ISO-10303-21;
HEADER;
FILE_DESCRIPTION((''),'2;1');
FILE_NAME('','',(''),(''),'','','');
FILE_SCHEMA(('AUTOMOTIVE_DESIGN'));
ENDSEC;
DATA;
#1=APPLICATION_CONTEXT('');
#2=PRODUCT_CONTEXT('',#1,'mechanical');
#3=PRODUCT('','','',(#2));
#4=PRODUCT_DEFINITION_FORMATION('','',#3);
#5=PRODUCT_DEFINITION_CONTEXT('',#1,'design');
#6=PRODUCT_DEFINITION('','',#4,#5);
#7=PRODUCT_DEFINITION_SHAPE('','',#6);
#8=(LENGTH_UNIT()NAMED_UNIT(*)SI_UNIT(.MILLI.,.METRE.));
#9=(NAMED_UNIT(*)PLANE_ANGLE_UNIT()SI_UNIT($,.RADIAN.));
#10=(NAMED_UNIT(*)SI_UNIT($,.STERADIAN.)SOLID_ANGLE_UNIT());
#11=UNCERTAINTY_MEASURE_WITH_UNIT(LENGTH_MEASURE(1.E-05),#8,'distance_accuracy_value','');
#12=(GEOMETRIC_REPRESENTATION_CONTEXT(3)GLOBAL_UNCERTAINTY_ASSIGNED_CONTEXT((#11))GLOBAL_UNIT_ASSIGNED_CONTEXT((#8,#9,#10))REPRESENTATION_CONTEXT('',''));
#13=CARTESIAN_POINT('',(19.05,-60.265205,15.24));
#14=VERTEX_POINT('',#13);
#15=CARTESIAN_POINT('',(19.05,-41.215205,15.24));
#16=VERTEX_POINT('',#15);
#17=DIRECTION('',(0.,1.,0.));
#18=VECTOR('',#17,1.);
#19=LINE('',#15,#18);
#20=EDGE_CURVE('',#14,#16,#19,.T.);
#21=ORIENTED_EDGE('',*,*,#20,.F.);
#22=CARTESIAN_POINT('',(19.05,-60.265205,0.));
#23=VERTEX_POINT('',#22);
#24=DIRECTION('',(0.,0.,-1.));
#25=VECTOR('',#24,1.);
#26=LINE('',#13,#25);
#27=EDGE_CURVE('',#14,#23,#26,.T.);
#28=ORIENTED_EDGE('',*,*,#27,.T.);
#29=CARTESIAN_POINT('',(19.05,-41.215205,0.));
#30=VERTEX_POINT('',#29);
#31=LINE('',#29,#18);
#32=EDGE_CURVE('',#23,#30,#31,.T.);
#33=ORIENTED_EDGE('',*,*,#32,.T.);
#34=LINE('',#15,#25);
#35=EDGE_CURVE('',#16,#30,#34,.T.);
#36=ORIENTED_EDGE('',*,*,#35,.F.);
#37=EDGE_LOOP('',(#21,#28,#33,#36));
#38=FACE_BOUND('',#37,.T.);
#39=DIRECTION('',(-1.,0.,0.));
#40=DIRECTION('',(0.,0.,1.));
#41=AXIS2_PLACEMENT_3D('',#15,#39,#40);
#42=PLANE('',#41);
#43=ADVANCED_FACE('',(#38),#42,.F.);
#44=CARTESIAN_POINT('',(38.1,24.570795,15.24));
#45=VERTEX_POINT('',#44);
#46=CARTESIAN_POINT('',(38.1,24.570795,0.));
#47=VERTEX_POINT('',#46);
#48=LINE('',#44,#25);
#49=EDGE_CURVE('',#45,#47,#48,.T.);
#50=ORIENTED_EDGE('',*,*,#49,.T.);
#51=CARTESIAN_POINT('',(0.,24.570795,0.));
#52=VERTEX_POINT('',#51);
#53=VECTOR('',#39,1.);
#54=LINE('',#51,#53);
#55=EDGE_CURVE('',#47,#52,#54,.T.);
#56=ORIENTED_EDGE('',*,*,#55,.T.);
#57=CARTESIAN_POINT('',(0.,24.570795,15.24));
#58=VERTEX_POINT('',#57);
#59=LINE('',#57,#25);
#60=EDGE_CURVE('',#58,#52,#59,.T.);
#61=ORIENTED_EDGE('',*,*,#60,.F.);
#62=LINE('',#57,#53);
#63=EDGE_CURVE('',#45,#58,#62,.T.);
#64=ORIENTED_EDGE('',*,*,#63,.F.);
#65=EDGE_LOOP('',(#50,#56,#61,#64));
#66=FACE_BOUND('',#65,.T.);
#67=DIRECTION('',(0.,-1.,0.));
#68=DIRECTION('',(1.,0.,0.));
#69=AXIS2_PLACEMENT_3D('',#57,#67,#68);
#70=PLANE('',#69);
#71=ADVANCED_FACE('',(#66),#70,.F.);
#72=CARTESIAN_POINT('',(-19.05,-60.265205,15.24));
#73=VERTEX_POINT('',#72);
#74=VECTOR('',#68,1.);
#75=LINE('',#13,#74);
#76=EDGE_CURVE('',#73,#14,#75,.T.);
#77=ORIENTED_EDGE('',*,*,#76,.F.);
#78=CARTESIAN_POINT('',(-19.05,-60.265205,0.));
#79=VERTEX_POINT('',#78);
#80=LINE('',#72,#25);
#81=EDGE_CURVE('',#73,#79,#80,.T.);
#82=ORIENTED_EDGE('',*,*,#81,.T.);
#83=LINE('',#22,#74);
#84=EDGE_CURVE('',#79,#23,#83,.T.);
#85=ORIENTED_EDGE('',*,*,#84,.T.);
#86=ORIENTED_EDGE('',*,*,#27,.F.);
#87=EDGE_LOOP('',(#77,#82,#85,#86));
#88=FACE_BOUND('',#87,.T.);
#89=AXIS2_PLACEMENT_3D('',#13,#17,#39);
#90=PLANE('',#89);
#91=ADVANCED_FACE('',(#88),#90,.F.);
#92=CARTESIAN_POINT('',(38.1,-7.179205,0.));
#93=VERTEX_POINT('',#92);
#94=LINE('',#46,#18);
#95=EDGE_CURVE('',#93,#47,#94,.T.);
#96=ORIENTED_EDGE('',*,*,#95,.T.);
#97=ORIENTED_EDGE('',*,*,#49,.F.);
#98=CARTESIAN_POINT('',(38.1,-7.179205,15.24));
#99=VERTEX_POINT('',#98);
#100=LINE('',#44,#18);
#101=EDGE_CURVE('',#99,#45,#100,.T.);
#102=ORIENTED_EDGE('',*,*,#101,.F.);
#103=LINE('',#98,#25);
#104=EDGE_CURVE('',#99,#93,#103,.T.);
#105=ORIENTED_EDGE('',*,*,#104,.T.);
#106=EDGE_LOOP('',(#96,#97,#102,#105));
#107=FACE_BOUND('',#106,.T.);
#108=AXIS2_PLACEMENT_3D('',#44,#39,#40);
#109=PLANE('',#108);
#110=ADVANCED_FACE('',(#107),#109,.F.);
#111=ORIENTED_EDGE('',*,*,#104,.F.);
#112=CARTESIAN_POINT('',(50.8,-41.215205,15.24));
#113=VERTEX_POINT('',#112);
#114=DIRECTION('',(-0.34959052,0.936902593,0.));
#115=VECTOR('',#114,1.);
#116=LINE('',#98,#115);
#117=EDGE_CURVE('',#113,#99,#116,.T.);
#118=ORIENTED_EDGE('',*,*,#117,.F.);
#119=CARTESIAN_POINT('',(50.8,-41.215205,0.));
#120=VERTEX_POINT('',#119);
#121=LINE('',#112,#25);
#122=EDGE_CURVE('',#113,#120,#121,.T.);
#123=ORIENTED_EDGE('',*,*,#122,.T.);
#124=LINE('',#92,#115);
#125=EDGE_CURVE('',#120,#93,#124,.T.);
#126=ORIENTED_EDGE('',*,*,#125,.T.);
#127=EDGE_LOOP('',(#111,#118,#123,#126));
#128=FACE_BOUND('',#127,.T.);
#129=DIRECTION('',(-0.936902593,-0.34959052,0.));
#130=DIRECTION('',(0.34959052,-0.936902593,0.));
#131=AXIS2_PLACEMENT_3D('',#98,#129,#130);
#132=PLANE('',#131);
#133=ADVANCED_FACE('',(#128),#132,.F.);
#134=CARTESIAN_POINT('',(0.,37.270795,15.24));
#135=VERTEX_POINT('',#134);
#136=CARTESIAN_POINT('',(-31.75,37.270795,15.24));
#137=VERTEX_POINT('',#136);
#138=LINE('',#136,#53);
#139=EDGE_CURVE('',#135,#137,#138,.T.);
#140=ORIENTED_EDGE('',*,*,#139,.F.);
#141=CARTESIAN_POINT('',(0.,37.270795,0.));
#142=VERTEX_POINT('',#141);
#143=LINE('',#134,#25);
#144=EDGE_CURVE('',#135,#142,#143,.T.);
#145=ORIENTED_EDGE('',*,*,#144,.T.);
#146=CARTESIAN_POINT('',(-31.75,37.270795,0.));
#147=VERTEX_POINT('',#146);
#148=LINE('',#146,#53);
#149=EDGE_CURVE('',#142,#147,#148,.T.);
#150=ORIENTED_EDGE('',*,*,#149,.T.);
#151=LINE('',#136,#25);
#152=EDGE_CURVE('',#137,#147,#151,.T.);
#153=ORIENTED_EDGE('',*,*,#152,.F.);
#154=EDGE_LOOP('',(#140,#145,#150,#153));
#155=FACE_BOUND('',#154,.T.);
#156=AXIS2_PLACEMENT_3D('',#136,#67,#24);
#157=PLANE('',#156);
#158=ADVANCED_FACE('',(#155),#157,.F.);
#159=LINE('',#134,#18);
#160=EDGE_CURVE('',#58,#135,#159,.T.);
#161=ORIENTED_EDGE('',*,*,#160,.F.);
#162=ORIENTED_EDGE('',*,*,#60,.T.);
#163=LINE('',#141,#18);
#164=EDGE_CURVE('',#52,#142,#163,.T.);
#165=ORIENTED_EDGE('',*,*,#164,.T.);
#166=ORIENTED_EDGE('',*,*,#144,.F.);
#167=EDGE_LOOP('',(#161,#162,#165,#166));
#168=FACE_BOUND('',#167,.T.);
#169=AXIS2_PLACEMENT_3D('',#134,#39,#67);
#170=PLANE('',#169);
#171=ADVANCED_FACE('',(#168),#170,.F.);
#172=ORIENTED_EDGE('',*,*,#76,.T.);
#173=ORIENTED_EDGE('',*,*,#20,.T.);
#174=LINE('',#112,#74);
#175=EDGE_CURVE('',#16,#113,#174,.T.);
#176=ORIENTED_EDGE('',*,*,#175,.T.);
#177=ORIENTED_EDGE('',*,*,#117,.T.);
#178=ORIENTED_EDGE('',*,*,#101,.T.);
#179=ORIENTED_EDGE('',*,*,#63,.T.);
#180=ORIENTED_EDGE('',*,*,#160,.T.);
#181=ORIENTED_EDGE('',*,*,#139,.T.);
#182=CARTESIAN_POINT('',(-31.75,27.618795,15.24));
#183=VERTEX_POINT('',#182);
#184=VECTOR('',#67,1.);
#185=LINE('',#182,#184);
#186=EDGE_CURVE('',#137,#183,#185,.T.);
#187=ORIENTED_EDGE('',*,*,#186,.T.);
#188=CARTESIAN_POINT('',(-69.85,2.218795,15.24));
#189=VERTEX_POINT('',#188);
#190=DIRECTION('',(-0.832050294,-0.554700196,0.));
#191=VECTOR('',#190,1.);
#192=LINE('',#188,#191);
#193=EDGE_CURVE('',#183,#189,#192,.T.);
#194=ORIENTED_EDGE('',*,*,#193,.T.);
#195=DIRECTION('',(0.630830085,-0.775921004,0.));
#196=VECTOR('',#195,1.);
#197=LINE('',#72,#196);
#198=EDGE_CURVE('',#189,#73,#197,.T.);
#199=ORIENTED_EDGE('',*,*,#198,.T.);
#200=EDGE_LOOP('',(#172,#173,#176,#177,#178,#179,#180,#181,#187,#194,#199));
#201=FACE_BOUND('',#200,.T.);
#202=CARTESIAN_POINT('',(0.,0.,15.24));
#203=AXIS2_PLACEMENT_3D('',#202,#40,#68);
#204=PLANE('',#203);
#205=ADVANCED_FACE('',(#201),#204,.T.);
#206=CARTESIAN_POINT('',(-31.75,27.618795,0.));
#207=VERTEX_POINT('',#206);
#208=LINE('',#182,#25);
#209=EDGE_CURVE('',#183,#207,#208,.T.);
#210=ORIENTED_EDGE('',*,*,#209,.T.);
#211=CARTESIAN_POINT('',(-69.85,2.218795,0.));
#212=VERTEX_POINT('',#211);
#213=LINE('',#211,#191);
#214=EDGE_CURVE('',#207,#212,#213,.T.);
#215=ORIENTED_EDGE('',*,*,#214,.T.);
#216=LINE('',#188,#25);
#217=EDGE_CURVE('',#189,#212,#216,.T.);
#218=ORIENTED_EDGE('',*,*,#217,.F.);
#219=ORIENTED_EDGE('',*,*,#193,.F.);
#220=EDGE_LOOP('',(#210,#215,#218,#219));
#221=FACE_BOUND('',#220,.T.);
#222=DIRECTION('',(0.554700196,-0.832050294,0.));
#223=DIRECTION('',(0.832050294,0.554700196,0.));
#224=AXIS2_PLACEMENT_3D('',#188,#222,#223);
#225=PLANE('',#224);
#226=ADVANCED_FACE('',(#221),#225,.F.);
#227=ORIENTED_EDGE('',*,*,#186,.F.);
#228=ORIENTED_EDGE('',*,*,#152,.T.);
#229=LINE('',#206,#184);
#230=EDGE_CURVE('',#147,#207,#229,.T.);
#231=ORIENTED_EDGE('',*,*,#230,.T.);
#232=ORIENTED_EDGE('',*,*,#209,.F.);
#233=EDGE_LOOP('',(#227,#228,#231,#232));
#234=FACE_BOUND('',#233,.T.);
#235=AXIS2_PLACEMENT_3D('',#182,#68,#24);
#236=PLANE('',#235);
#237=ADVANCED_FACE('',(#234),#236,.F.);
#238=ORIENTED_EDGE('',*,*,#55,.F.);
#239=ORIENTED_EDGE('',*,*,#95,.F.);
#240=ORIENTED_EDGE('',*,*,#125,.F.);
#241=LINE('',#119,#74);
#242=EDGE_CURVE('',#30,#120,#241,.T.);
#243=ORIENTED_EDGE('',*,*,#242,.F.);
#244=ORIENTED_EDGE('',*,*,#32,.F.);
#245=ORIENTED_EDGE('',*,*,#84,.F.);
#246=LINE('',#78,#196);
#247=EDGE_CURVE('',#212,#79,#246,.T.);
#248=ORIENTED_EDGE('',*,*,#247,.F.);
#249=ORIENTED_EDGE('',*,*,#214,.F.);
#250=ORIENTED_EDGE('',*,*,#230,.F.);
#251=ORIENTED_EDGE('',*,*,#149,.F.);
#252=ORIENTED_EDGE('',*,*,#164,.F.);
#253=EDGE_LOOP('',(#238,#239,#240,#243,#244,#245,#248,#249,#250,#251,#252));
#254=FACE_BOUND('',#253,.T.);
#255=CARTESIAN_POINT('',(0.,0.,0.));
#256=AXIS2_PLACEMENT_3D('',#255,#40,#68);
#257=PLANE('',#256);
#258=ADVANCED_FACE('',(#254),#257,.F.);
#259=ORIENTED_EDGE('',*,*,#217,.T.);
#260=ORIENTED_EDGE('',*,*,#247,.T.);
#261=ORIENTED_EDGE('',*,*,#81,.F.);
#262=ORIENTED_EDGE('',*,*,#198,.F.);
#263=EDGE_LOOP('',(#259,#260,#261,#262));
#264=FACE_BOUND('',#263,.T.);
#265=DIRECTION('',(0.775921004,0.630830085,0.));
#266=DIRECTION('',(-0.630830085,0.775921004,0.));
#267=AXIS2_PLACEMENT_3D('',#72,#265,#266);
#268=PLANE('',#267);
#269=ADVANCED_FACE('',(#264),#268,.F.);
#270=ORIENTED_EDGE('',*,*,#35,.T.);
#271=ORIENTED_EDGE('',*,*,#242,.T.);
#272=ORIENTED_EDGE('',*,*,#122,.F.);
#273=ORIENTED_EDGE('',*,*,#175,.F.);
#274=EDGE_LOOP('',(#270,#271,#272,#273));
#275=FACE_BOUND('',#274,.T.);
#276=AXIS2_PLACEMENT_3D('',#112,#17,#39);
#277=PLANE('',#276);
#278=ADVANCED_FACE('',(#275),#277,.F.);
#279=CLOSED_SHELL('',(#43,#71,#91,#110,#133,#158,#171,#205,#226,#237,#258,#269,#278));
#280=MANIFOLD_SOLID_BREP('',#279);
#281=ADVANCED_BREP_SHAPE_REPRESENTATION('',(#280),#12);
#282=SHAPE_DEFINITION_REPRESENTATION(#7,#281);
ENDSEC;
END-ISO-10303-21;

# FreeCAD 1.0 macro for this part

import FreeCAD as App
import Part
import Sketcher
from FreeCAD import Vector
Q = App.Units.Quantity

doc = App.newDocument("Part")
body = doc.addObject("PartDesign::Body", "Body")

# Sketch on XY plane
sketch1 = doc.addObject("Sketcher::SketchObject", "Sketch")
body.addObject(sketch1)
sketch1.AttachmentSupport = (doc.XY_Plane, [""])
sketch1.MapMode = "FlatFace"
sketch1.addGeometry(Part.LineSegment(Vector(-70, 2, 0), Vector(-19, -60, 0)), False)
sketch1.addGeometry(Part.LineSegment(Vector(-19, -60, 0), Vector(19, -60, 0)), False)
sketch1.addGeometry(Part.LineSegment(Vector(19, -60, 0), Vector(19, -41, 0)), False)
sketch1.addGeometry(Part.LineSegment(Vector(19, -41, 0), Vector(51, -41, 0)), False)
sketch1.addGeometry(Part.LineSegment(Vector(51, -41, 0), Vector(38, -7, 0)), False)
sketch1.addGeometry(Part.LineSegment(Vector(38, -7, 0), Vector(38, 25, 0)), False)
sketch1.addGeometry(Part.LineSegment(Vector(38, 25, 0), Vector(0, 25, 0)), False)
sketch1.addGeometry(Part.LineSegment(Vector(0, 25, 0), Vector(0, 37, 0)), False)
sketch1.addGeometry(Part.LineSegment(Vector(0, 37, 0), Vector(-32, 37, 0)), False)
sketch1.addGeometry(Part.LineSegment(Vector(-32, 37, 0), Vector(-32, 28, 0)), False)
sketch1.addGeometry(Part.LineSegment(Vector(-32, 28, 0), Vector(-70, 2, 0)), False)
sketch1.addConstraint(Sketcher.Constraint("Coincident", 0, 2, 1, 1))
sketch1.addConstraint(Sketcher.Constraint("Coincident", 1, 2, 2, 1))
sketch1.addConstraint(Sketcher.Constraint("Coincident", 2, 2, 3, 1))
sketch1.addConstraint(Sketcher.Constraint("Coincident", 3, 2, 4, 1))
sketch1.addConstraint(Sketcher.Constraint("Coincident", 4, 2, 5, 1))
sketch1.addConstraint(Sketcher.Constraint("Coincident", 5, 2, 6, 1))
sketch1.addConstraint(Sketcher.Constraint("Coincident", 6, 2, 7, 1))
sketch1.addConstraint(Sketcher.Constraint("Coincident", 7, 2, 8, 1))
sketch1.addConstraint(Sketcher.Constraint("Coincident", 8, 2, 9, 1))
sketch1.addConstraint(Sketcher.Constraint("Coincident", 9, 2, 10, 1))
sketch1.addConstraint(Sketcher.Constraint("Coincident", 10, 2, 0, 1))
sketch1.addConstraint(Sketcher.Constraint("Horizontal", 1))
sketch1.addConstraint(Sketcher.Constraint("Vertical", 2))
sketch1.addConstraint(Sketcher.Constraint("Horizontal", 3))
sketch1.addConstraint(Sketcher.Constraint("Vertical", 5))
sketch1.addConstraint(Sketcher.Constraint("Horizontal", 6))
sketch1.addConstraint(Sketcher.Constraint("Vertical", 7))
sketch1.addConstraint(Sketcher.Constraint("Horizontal", 8))
sketch1.addConstraint(Sketcher.Constraint("Vertical", 9))
sketch1.addConstraint(Sketcher.Constraint("PointOnObject", 6, 2, -2))
sketch1.addConstraint(Sketcher.Constraint("Equal", 1, 6))
sketch1.addConstraint(Sketcher.Constraint("Equal", 3, 8))
sketch1.addConstraint(Sketcher.Constraint("Equal", 8, 5))
sketch1.addConstraint(Sketcher.Constraint("DistanceX", 1, 1, 1, 2, Q("1.5 in")))
sketch1.addConstraint(Sketcher.Constraint("DistanceY", 7, 1, 7, 2, Q("0.5 in")))
sketch1.addConstraint(Sketcher.Constraint("DistanceX", -1, 1, 3, 2, Q("2 in")))
sketch1.addConstraint(Sketcher.Constraint("DistanceY", 10, 2, 9, 2, Q("1 in")))
sketch1.addConstraint(Sketcher.Constraint("DistanceX", 10, 2, 0, 2, Q("2 in")))
sketch1.addConstraint(Sketcher.Constraint("DistanceX", 3, 1, 3, 2, Q("1.25 in")))
sketch1.addConstraint(Sketcher.Constraint("DistanceY", 2, 1, 2, 2, Q("0.75 in")))
sketch1.addConstraint(Sketcher.Constraint("DistanceY", 9, 2, 9, 1, Q("0.38 in")))
sketch1.addConstraint(Sketcher.Constraint("DistanceY", 3, 2, 4, 2, Q("1.34 in")))
sketch1.addConstraint(Sketcher.Constraint("DistanceY", 0, 2, -1, 1, 60.265205))
pad1 = doc.addObject("PartDesign::Pad", "Pad")
body.addObject(pad1)
pad1.Profile = sketch1
pad1.Length = Q("0.6 in")

doc.recompute()
